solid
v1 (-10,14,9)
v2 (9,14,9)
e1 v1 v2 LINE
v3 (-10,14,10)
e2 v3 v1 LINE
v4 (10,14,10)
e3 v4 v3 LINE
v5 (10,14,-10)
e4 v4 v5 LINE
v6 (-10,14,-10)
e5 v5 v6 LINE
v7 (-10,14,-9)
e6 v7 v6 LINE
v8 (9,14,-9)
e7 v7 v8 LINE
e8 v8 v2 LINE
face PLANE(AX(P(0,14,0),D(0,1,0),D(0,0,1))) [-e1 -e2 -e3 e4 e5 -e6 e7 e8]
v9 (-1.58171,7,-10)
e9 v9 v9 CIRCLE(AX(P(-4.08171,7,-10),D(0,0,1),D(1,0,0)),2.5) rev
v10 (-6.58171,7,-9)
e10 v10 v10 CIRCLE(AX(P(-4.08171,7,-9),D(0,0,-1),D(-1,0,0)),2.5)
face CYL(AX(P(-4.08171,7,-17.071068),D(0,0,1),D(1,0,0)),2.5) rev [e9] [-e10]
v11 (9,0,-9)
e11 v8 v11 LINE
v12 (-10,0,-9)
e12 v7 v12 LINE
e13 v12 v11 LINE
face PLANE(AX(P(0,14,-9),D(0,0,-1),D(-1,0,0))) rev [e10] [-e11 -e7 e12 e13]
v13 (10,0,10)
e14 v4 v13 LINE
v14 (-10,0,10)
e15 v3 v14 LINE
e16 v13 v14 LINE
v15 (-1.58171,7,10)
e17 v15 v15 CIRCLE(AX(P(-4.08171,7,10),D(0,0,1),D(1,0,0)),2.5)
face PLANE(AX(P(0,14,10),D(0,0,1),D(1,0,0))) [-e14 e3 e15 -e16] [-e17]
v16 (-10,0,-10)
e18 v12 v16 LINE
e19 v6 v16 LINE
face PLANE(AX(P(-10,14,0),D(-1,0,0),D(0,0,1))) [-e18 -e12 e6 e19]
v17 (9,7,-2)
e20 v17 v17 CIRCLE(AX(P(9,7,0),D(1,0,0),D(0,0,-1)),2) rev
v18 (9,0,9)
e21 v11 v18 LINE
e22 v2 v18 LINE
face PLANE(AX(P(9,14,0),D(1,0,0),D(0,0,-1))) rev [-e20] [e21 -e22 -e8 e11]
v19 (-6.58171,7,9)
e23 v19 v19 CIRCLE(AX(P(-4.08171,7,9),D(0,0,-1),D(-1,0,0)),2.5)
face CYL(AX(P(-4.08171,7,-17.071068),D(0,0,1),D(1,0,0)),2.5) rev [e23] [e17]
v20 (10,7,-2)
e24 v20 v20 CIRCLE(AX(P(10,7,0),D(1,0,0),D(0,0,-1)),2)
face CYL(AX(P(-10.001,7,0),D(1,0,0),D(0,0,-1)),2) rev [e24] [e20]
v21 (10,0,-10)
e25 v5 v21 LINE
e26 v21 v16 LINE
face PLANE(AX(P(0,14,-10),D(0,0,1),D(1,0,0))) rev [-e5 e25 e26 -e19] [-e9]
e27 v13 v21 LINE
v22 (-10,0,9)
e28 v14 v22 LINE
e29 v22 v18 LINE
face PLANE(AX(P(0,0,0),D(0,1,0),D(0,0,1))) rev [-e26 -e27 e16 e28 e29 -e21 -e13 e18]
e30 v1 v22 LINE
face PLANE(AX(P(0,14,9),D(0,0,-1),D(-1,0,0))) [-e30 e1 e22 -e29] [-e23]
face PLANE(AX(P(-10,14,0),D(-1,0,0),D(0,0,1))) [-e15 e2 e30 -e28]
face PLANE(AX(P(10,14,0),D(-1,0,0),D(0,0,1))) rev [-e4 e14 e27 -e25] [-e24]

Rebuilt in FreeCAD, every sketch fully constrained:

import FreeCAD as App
import Part
import Sketcher

V = App.Vector
Q = App.Units.Quantity


def add_polygon(sketch, points):
    """Adds a closed chain of lines whose ends are joined by coincident constraints."""
    first, n = sketch.GeometryCount, len(points)
    for a, b in zip(points, points[1:] + points[:1]):
        sketch.addGeometry(Part.LineSegment(App.Vector(*a, 0), App.Vector(*b, 0)), False)
    for i in range(n):
        sketch.addConstraint(Sketcher.Constraint("Coincident", first + i, 2, first + (i + 1) % n, 1))

doc = App.newDocument("Part")
params = doc.addObject("Spreadsheet::Sheet", "Params")
for row, (alias, value) in enumerate([
    ("sketch1_width", "20 mm"),
    ("sketch1_width2", "19 mm"),
    ("sketch1_height", "1 mm"),
    ("pad1_length", "14 mm"),
    ("sketch2_diameter", "5 mm"),
    ("pocket1_length", "20 mm"),
    ("sketch3_diameter", "4 mm"),
], start=1):
    params.set(f"A{row}", alias)
    params.set(f"B{row}", "=" + value)
    params.setAlias(f"B{row}", alias)

body = doc.addObject("PartDesign::Body", "Body")

# Sketch on XZ plane
sketch1 = body.newObject("Sketcher::SketchObject", "Sketch")
sketch1.AttachmentSupport = (doc.getObject("XZ_Plane"), [""])
sketch1.MapMode = "FlatFace"
add_polygon(sketch1, [(-10, 10), (10, 10), (10, -10), (-10, -10), (-10, -9), (9, -9), (9, 9), (-10, 9)])  # lines 0-7
sketch1.addConstraint([
    Sketcher.Constraint("Horizontal", 0),
    Sketcher.Constraint("Vertical", 1),
    Sketcher.Constraint("Horizontal", 2),
    Sketcher.Constraint("Vertical", 3),
    Sketcher.Constraint("Horizontal", 4),
    Sketcher.Constraint("Vertical", 5),
    Sketcher.Constraint("Horizontal", 6),
    Sketcher.Constraint("Vertical", 7),
    Sketcher.Constraint("Symmetric", 0, 2, 2, 2, -1, 1),
    Sketcher.Constraint("Symmetric", 3, 2, 6, 2, -1),
    Sketcher.Constraint("Equal", 2, 1),
    Sketcher.Constraint("DistanceX", 0, 1, 0, 2, Q("20 mm")),
    Sketcher.Constraint("DistanceX", 4, 1, 4, 2, Q("19 mm")),
    Sketcher.Constraint("DistanceY", 3, 1, 3, 2, Q("1 mm")),
])
sketch1.setExpression("Constraints[19]", "Params.sketch1_width")
sketch1.setExpression("Constraints[20]", "Params.sketch1_width2")
sketch1.setExpression("Constraints[21]", "Params.sketch1_height")
pad1 = body.newObject("PartDesign::Pad", "Pad")
pad1.Profile = sketch1
pad1.setExpression("Length", "Params.pad1_length")
pad1.Reversed = True

# Sketch on XY plane
sketch2 = body.newObject("Sketcher::SketchObject", "Sketch001")
sketch2.AttachmentSupport = (doc.getObject("XY_Plane"), [""])
sketch2.MapMode = "FlatFace"
sketch2.AttachmentOffset = App.Placement(V(0, 0, 10), App.Rotation())
sketch2.addGeometry(Part.Circle(V(-4.08171, 7, 0), V(0, 0, 1), 2.5), False)
sketch2.addConstraint([
    Sketcher.Constraint("Diameter", 0, Q("5 mm")),
    Sketcher.Constraint("DistanceY", -1, 1, 0, 3, Q("7 mm")),
    Sketcher.Constraint("DistanceX", 0, 3, -1, 1, Q("4.08171 mm")),
])
sketch2.setExpression("Constraints[0]", "Params.sketch2_diameter")
pocket1 = body.newObject("PartDesign::Pocket", "Pocket")
pocket1.Profile = sketch2
pocket1.setExpression("Length", "Params.pocket1_length")

# Sketch on YZ plane
sketch3 = body.newObject("Sketcher::SketchObject", "Sketch002")
sketch3.AttachmentSupport = (doc.getObject("YZ_Plane"), [""])
sketch3.MapMode = "FlatFace"
sketch3.AttachmentOffset = App.Placement(V(0, 0, 10), App.Rotation())
sketch3.addGeometry(Part.Circle(V(7, 0, 0), V(0, 0, 1), 2), False)
sketch3.addConstraint([
    Sketcher.Constraint("PointOnObject", 0, 3, -1),
    Sketcher.Constraint("Diameter", 0, Q("4 mm")),
    Sketcher.Constraint("DistanceX", -1, 1, 0, 3, Q("7 mm")),
])
sketch3.setExpression("Constraints[1]", "Params.sketch3_diameter")
pocket2 = body.newObject("PartDesign::Pocket", "Pocket001")
pocket2.Profile = sketch3
pocket2.Type = "UpToFirst"

doc.recompute()
